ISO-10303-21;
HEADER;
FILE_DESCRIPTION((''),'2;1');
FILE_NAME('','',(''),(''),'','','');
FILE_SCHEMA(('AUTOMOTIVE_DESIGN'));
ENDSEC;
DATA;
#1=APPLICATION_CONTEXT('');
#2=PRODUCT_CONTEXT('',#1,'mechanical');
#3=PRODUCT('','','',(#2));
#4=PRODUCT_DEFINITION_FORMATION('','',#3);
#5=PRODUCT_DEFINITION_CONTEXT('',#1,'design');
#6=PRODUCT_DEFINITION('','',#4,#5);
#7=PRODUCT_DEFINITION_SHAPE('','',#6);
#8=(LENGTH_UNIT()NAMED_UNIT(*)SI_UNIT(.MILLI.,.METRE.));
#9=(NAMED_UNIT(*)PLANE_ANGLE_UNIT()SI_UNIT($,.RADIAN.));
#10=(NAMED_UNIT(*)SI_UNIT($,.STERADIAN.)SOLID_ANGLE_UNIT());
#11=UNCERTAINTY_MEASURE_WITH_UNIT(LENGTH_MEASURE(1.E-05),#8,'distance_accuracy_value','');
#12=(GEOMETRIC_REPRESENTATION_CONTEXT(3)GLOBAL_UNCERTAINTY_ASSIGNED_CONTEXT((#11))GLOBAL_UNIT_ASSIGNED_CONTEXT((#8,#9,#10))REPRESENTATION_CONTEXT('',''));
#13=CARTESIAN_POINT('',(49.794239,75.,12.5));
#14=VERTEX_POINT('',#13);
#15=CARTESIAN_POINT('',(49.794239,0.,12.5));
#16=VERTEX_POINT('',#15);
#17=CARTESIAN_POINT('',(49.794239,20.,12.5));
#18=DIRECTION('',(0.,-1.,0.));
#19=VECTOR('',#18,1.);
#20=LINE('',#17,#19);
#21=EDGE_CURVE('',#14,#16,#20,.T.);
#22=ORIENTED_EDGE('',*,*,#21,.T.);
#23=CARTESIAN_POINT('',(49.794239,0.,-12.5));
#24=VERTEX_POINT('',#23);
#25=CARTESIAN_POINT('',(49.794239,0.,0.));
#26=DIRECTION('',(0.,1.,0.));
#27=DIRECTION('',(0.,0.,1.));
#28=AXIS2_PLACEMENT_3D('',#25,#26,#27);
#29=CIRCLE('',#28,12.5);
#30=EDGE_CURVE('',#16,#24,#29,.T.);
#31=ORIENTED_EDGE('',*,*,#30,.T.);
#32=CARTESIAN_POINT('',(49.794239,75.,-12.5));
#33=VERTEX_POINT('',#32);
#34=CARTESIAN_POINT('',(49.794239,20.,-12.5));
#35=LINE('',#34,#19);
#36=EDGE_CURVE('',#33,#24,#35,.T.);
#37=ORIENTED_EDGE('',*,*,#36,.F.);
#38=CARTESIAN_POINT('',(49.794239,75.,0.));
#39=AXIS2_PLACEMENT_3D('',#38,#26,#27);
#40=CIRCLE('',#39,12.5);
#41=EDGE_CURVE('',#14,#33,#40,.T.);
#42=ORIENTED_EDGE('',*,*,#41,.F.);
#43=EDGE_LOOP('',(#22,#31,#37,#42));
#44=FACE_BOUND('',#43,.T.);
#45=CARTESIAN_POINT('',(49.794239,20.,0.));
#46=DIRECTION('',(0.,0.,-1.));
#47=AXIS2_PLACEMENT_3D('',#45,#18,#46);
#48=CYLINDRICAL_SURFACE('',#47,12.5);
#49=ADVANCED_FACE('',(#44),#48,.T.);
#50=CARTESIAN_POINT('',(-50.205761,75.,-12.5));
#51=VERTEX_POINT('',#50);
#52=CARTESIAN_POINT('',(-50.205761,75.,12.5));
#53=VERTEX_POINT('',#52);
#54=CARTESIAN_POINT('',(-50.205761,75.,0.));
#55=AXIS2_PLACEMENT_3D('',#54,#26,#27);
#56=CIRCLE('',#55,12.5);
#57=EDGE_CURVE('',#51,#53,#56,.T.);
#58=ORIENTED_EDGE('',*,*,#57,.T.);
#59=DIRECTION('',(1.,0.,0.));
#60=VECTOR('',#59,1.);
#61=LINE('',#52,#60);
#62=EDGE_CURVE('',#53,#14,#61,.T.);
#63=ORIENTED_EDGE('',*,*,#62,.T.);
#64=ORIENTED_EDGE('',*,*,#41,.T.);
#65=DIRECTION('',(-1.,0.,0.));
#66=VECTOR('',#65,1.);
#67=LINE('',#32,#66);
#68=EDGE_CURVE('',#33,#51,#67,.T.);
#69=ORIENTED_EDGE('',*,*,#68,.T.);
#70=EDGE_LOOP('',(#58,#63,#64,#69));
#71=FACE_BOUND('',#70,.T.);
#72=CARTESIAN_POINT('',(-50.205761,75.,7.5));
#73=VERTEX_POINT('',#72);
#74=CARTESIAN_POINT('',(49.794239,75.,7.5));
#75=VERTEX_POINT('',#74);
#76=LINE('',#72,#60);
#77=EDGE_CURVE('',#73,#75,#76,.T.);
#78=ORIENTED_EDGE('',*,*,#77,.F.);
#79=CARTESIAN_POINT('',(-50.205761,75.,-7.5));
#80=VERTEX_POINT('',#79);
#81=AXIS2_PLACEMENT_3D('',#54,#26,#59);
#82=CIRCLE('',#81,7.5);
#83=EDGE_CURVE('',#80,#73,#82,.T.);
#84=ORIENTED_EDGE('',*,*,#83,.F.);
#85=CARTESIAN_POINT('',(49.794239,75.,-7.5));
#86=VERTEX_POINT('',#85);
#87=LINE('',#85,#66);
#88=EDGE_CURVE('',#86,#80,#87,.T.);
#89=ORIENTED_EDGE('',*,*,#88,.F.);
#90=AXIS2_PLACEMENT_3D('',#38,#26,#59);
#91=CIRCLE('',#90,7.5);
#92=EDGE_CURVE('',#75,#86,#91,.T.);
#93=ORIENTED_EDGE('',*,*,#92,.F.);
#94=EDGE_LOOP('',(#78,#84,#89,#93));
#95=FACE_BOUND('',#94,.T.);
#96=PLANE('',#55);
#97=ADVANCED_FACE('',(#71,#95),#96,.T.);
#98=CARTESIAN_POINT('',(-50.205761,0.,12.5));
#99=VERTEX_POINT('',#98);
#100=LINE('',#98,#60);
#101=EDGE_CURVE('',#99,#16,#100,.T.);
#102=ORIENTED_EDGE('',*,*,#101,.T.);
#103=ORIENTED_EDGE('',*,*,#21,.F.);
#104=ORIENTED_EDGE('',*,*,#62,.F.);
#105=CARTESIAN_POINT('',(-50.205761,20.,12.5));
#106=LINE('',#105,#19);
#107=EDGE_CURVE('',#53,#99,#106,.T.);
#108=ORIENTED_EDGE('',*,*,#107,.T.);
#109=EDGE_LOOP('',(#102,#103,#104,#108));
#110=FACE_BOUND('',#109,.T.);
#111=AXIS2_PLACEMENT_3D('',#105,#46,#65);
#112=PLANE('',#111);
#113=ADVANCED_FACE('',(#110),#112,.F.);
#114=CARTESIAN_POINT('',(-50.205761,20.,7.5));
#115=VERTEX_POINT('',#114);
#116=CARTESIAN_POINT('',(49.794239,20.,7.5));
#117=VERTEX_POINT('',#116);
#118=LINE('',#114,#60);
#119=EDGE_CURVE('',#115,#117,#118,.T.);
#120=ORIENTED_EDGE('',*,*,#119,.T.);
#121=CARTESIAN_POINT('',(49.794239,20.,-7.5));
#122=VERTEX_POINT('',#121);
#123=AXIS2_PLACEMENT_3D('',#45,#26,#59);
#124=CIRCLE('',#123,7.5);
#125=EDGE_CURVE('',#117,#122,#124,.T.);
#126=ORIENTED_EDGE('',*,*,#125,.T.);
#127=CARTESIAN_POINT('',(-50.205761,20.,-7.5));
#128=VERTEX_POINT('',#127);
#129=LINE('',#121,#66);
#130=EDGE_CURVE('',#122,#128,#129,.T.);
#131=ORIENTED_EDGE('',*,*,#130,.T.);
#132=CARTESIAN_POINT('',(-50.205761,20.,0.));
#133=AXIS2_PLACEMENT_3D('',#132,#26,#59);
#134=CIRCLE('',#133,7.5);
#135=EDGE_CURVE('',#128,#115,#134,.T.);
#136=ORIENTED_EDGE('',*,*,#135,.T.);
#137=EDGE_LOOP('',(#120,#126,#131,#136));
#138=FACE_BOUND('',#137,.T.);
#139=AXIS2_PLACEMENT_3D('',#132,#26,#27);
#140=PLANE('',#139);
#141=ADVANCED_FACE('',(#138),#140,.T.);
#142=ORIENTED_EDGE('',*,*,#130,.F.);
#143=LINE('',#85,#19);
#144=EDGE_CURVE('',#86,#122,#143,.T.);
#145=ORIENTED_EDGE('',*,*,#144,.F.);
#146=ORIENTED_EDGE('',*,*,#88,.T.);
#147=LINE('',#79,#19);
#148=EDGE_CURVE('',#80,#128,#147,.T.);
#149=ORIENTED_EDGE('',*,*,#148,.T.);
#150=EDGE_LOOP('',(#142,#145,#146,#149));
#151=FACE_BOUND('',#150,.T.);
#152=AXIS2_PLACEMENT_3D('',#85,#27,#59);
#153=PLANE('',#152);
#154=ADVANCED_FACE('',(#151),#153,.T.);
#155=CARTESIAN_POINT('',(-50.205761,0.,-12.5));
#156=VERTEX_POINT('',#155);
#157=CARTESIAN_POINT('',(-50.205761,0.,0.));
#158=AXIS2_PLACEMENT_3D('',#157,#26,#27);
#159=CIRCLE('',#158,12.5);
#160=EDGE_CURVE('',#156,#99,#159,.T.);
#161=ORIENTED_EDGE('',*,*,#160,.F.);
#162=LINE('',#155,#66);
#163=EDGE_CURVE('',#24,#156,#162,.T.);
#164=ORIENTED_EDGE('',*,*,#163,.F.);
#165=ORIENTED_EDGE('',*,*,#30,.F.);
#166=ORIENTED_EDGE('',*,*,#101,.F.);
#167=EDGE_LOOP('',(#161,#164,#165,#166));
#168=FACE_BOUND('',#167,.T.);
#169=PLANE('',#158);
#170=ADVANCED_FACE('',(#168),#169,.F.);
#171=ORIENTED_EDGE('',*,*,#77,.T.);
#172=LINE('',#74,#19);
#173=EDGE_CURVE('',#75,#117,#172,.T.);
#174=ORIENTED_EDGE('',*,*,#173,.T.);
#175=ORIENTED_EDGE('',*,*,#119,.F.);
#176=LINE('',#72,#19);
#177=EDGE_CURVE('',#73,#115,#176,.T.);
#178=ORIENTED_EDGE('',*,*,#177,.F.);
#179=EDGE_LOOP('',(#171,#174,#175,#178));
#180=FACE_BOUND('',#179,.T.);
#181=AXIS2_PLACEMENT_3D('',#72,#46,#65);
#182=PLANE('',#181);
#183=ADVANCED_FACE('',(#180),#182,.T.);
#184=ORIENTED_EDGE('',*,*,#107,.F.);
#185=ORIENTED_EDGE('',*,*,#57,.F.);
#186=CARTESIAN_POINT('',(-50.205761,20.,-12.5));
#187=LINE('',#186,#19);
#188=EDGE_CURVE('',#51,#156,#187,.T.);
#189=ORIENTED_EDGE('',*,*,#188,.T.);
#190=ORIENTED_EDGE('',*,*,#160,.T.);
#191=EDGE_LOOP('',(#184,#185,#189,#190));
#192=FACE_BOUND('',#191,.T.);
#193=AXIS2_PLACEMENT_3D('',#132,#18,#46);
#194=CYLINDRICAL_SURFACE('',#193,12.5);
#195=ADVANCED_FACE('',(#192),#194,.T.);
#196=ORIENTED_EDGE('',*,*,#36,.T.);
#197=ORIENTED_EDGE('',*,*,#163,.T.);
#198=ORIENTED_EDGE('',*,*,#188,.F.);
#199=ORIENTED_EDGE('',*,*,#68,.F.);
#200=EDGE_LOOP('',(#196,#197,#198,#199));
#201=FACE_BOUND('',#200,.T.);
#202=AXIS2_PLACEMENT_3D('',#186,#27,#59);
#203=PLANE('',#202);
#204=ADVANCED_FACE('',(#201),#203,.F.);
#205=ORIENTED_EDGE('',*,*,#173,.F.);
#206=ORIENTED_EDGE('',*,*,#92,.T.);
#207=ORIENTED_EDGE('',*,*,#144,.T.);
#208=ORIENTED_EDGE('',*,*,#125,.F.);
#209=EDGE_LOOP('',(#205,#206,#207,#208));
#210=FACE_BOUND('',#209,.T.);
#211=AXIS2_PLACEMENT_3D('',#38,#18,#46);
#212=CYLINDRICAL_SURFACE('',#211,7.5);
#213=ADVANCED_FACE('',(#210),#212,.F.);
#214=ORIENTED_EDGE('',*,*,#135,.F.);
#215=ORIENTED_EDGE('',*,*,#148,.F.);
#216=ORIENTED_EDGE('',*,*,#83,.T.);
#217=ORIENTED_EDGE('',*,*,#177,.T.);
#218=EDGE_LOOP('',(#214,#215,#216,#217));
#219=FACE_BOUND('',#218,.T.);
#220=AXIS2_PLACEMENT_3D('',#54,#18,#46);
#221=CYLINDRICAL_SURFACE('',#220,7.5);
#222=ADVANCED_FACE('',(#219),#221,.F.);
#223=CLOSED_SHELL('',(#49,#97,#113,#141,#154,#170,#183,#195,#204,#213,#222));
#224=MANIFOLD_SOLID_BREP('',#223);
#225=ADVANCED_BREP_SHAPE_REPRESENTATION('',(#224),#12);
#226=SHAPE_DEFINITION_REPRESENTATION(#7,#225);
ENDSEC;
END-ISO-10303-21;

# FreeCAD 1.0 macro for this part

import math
import FreeCAD as App
import Part
import Sketcher

V = App.Vector

doc = App.newDocument("Part")
body = doc.addObject("PartDesign::Body", "Body")

# Sketch on XZ plane
sketch1 = doc.addObject("Sketcher::SketchObject", "Sketch")
body.addObject(sketch1)
sketch1.AttachmentSupport = (doc.XZ_Plane, [""])
sketch1.MapMode = "FlatFace"
sketch1.addGeometry(Part.LineSegment(V(49.794239, -12.5, 0), V(-50.205761, -12.5, 0)), False)
sketch1.addGeometry(Part.ArcOfCircle(Part.Circle(V(-50.205761, 0, 0), V(0, 0, 1), 12.5), math.radians(90), math.radians(270)), False)
sketch1.addGeometry(Part.LineSegment(V(-50.205761, 12.5, 0), V(49.794239, 12.5, 0)), False)
sketch1.addGeometry(Part.ArcOfCircle(Part.Circle(V(49.794239, 0, 0), V(0, 0, 1), 12.5), math.radians(-90), math.radians(90)), False)
sketch1.addConstraint(Sketcher.Constraint("Tangent", 0, 2, 1, 2))
sketch1.addConstraint(Sketcher.Constraint("Tangent", 1, 1, 2, 1))
sketch1.addConstraint(Sketcher.Constraint("Tangent", 2, 2, 3, 2))
sketch1.addConstraint(Sketcher.Constraint("Tangent", 3, 1, 0, 1))
sketch1.addConstraint(Sketcher.Constraint("Horizontal", 0))
sketch1.addConstraint(Sketcher.Constraint("Horizontal", 2))
sketch1.addConstraint(Sketcher.Constraint("PointOnObject", 1, 3, -1))
sketch1.addConstraint(Sketcher.Constraint("Radius", 1, 12.5))
sketch1.addConstraint(Sketcher.Constraint("DistanceX", 0, 2, 0, 1, 100.0))
sketch1.addConstraint(Sketcher.Constraint("DistanceX", 1, 3, -1, 1, 50.205761))
pad1 = doc.addObject("PartDesign::Pad", "Pad")
body.addObject(pad1)
pad1.Profile = sketch1
pad1.Length = 20
pad1.Reversed = True

# Sketch on XZ plane
sketch2 = doc.addObject("Sketcher::SketchObject", "Sketch001")
body.addObject(sketch2)
sketch2.AttachmentSupport = (doc.XZ_Plane, [""])
sketch2.MapMode = "FlatFace"
sketch2.AttachmentOffset = App.Placement(V(0, 0, -20), App.Rotation())
sketch2.addGeometry(Part.LineSegment(V(49.794239, -12.5, 0), V(-50.205761, -12.5, 0)), False)
sketch2.addGeometry(Part.ArcOfCircle(Part.Circle(V(-50.205761, 0, 0), V(0, 0, 1), 12.5), math.radians(90), math.radians(270)), False)
sketch2.addGeometry(Part.LineSegment(V(-50.205761, 12.5, 0), V(49.794239, 12.5, 0)), False)
sketch2.addGeometry(Part.ArcOfCircle(Part.Circle(V(49.794239, 0, 0), V(0, 0, 1), 12.5), math.radians(-90), math.radians(90)), False)
sketch2.addGeometry(Part.LineSegment(V(-50.205761, -7.5, 0), V(49.794239, -7.5, 0)), False)
sketch2.addGeometry(Part.ArcOfCircle(Part.Circle(V(49.794239, 0, 0), V(0, 0, 1), 7.5), math.radians(-90), math.radians(90)), False)
sketch2.addGeometry(Part.LineSegment(V(49.794239, 7.5, 0), V(-50.205761, 7.5, 0)), False)
sketch2.addGeometry(Part.ArcOfCircle(Part.Circle(V(-50.205761, 0, 0), V(0, 0, 1), 7.5), math.radians(90), math.radians(270)), False)
sketch2.addConstraint(Sketcher.Constraint("Tangent", 0, 2, 1, 2))
sketch2.addConstraint(Sketcher.Constraint("Tangent", 1, 1, 2, 1))
sketch2.addConstraint(Sketcher.Constraint("Tangent", 2, 2, 3, 2))
sketch2.addConstraint(Sketcher.Constraint("Tangent", 3, 1, 0, 1))
sketch2.addConstraint(Sketcher.Constraint("Tangent", 4, 2, 5, 1))
sketch2.addConstraint(Sketcher.Constraint("Tangent", 5, 2, 6, 1))
sketch2.addConstraint(Sketcher.Constraint("Tangent", 6, 2, 7, 1))
sketch2.addConstraint(Sketcher.Constraint("Tangent", 7, 2, 4, 1))
sketch2.addConstraint(Sketcher.Constraint("Horizontal", 0))
sketch2.addConstraint(Sketcher.Constraint("Horizontal", 2))
sketch2.addConstraint(Sketcher.Constraint("Horizontal", 4))
sketch2.addConstraint(Sketcher.Constraint("Horizontal", 6))
sketch2.addConstraint(Sketcher.Constraint("Coincident", 5, 3, 3, 3))
sketch2.addConstraint(Sketcher.Constraint("PointOnObject", 1, 3, -1))
sketch2.addConstraint(Sketcher.Constraint("Vertical", 7, 3, 0, 2))
sketch2.addConstraint(Sketcher.Constraint("Radius", 1, 12.5))
sketch2.addConstraint(Sketcher.Constraint("Radius", 5, 7.5))
sketch2.addConstraint(Sketcher.Constraint("DistanceX", 0, 2, 0, 1, 100.0))
sketch2.addConstraint(Sketcher.Constraint("DistanceX", 1, 3, -1, 1, 50.205761))
pad2 = doc.addObject("PartDesign::Pad", "Pad001")
body.addObject(pad2)
pad2.Profile = sketch2
pad2.Length = 55
pad2.Reversed = True

doc.recompute()
